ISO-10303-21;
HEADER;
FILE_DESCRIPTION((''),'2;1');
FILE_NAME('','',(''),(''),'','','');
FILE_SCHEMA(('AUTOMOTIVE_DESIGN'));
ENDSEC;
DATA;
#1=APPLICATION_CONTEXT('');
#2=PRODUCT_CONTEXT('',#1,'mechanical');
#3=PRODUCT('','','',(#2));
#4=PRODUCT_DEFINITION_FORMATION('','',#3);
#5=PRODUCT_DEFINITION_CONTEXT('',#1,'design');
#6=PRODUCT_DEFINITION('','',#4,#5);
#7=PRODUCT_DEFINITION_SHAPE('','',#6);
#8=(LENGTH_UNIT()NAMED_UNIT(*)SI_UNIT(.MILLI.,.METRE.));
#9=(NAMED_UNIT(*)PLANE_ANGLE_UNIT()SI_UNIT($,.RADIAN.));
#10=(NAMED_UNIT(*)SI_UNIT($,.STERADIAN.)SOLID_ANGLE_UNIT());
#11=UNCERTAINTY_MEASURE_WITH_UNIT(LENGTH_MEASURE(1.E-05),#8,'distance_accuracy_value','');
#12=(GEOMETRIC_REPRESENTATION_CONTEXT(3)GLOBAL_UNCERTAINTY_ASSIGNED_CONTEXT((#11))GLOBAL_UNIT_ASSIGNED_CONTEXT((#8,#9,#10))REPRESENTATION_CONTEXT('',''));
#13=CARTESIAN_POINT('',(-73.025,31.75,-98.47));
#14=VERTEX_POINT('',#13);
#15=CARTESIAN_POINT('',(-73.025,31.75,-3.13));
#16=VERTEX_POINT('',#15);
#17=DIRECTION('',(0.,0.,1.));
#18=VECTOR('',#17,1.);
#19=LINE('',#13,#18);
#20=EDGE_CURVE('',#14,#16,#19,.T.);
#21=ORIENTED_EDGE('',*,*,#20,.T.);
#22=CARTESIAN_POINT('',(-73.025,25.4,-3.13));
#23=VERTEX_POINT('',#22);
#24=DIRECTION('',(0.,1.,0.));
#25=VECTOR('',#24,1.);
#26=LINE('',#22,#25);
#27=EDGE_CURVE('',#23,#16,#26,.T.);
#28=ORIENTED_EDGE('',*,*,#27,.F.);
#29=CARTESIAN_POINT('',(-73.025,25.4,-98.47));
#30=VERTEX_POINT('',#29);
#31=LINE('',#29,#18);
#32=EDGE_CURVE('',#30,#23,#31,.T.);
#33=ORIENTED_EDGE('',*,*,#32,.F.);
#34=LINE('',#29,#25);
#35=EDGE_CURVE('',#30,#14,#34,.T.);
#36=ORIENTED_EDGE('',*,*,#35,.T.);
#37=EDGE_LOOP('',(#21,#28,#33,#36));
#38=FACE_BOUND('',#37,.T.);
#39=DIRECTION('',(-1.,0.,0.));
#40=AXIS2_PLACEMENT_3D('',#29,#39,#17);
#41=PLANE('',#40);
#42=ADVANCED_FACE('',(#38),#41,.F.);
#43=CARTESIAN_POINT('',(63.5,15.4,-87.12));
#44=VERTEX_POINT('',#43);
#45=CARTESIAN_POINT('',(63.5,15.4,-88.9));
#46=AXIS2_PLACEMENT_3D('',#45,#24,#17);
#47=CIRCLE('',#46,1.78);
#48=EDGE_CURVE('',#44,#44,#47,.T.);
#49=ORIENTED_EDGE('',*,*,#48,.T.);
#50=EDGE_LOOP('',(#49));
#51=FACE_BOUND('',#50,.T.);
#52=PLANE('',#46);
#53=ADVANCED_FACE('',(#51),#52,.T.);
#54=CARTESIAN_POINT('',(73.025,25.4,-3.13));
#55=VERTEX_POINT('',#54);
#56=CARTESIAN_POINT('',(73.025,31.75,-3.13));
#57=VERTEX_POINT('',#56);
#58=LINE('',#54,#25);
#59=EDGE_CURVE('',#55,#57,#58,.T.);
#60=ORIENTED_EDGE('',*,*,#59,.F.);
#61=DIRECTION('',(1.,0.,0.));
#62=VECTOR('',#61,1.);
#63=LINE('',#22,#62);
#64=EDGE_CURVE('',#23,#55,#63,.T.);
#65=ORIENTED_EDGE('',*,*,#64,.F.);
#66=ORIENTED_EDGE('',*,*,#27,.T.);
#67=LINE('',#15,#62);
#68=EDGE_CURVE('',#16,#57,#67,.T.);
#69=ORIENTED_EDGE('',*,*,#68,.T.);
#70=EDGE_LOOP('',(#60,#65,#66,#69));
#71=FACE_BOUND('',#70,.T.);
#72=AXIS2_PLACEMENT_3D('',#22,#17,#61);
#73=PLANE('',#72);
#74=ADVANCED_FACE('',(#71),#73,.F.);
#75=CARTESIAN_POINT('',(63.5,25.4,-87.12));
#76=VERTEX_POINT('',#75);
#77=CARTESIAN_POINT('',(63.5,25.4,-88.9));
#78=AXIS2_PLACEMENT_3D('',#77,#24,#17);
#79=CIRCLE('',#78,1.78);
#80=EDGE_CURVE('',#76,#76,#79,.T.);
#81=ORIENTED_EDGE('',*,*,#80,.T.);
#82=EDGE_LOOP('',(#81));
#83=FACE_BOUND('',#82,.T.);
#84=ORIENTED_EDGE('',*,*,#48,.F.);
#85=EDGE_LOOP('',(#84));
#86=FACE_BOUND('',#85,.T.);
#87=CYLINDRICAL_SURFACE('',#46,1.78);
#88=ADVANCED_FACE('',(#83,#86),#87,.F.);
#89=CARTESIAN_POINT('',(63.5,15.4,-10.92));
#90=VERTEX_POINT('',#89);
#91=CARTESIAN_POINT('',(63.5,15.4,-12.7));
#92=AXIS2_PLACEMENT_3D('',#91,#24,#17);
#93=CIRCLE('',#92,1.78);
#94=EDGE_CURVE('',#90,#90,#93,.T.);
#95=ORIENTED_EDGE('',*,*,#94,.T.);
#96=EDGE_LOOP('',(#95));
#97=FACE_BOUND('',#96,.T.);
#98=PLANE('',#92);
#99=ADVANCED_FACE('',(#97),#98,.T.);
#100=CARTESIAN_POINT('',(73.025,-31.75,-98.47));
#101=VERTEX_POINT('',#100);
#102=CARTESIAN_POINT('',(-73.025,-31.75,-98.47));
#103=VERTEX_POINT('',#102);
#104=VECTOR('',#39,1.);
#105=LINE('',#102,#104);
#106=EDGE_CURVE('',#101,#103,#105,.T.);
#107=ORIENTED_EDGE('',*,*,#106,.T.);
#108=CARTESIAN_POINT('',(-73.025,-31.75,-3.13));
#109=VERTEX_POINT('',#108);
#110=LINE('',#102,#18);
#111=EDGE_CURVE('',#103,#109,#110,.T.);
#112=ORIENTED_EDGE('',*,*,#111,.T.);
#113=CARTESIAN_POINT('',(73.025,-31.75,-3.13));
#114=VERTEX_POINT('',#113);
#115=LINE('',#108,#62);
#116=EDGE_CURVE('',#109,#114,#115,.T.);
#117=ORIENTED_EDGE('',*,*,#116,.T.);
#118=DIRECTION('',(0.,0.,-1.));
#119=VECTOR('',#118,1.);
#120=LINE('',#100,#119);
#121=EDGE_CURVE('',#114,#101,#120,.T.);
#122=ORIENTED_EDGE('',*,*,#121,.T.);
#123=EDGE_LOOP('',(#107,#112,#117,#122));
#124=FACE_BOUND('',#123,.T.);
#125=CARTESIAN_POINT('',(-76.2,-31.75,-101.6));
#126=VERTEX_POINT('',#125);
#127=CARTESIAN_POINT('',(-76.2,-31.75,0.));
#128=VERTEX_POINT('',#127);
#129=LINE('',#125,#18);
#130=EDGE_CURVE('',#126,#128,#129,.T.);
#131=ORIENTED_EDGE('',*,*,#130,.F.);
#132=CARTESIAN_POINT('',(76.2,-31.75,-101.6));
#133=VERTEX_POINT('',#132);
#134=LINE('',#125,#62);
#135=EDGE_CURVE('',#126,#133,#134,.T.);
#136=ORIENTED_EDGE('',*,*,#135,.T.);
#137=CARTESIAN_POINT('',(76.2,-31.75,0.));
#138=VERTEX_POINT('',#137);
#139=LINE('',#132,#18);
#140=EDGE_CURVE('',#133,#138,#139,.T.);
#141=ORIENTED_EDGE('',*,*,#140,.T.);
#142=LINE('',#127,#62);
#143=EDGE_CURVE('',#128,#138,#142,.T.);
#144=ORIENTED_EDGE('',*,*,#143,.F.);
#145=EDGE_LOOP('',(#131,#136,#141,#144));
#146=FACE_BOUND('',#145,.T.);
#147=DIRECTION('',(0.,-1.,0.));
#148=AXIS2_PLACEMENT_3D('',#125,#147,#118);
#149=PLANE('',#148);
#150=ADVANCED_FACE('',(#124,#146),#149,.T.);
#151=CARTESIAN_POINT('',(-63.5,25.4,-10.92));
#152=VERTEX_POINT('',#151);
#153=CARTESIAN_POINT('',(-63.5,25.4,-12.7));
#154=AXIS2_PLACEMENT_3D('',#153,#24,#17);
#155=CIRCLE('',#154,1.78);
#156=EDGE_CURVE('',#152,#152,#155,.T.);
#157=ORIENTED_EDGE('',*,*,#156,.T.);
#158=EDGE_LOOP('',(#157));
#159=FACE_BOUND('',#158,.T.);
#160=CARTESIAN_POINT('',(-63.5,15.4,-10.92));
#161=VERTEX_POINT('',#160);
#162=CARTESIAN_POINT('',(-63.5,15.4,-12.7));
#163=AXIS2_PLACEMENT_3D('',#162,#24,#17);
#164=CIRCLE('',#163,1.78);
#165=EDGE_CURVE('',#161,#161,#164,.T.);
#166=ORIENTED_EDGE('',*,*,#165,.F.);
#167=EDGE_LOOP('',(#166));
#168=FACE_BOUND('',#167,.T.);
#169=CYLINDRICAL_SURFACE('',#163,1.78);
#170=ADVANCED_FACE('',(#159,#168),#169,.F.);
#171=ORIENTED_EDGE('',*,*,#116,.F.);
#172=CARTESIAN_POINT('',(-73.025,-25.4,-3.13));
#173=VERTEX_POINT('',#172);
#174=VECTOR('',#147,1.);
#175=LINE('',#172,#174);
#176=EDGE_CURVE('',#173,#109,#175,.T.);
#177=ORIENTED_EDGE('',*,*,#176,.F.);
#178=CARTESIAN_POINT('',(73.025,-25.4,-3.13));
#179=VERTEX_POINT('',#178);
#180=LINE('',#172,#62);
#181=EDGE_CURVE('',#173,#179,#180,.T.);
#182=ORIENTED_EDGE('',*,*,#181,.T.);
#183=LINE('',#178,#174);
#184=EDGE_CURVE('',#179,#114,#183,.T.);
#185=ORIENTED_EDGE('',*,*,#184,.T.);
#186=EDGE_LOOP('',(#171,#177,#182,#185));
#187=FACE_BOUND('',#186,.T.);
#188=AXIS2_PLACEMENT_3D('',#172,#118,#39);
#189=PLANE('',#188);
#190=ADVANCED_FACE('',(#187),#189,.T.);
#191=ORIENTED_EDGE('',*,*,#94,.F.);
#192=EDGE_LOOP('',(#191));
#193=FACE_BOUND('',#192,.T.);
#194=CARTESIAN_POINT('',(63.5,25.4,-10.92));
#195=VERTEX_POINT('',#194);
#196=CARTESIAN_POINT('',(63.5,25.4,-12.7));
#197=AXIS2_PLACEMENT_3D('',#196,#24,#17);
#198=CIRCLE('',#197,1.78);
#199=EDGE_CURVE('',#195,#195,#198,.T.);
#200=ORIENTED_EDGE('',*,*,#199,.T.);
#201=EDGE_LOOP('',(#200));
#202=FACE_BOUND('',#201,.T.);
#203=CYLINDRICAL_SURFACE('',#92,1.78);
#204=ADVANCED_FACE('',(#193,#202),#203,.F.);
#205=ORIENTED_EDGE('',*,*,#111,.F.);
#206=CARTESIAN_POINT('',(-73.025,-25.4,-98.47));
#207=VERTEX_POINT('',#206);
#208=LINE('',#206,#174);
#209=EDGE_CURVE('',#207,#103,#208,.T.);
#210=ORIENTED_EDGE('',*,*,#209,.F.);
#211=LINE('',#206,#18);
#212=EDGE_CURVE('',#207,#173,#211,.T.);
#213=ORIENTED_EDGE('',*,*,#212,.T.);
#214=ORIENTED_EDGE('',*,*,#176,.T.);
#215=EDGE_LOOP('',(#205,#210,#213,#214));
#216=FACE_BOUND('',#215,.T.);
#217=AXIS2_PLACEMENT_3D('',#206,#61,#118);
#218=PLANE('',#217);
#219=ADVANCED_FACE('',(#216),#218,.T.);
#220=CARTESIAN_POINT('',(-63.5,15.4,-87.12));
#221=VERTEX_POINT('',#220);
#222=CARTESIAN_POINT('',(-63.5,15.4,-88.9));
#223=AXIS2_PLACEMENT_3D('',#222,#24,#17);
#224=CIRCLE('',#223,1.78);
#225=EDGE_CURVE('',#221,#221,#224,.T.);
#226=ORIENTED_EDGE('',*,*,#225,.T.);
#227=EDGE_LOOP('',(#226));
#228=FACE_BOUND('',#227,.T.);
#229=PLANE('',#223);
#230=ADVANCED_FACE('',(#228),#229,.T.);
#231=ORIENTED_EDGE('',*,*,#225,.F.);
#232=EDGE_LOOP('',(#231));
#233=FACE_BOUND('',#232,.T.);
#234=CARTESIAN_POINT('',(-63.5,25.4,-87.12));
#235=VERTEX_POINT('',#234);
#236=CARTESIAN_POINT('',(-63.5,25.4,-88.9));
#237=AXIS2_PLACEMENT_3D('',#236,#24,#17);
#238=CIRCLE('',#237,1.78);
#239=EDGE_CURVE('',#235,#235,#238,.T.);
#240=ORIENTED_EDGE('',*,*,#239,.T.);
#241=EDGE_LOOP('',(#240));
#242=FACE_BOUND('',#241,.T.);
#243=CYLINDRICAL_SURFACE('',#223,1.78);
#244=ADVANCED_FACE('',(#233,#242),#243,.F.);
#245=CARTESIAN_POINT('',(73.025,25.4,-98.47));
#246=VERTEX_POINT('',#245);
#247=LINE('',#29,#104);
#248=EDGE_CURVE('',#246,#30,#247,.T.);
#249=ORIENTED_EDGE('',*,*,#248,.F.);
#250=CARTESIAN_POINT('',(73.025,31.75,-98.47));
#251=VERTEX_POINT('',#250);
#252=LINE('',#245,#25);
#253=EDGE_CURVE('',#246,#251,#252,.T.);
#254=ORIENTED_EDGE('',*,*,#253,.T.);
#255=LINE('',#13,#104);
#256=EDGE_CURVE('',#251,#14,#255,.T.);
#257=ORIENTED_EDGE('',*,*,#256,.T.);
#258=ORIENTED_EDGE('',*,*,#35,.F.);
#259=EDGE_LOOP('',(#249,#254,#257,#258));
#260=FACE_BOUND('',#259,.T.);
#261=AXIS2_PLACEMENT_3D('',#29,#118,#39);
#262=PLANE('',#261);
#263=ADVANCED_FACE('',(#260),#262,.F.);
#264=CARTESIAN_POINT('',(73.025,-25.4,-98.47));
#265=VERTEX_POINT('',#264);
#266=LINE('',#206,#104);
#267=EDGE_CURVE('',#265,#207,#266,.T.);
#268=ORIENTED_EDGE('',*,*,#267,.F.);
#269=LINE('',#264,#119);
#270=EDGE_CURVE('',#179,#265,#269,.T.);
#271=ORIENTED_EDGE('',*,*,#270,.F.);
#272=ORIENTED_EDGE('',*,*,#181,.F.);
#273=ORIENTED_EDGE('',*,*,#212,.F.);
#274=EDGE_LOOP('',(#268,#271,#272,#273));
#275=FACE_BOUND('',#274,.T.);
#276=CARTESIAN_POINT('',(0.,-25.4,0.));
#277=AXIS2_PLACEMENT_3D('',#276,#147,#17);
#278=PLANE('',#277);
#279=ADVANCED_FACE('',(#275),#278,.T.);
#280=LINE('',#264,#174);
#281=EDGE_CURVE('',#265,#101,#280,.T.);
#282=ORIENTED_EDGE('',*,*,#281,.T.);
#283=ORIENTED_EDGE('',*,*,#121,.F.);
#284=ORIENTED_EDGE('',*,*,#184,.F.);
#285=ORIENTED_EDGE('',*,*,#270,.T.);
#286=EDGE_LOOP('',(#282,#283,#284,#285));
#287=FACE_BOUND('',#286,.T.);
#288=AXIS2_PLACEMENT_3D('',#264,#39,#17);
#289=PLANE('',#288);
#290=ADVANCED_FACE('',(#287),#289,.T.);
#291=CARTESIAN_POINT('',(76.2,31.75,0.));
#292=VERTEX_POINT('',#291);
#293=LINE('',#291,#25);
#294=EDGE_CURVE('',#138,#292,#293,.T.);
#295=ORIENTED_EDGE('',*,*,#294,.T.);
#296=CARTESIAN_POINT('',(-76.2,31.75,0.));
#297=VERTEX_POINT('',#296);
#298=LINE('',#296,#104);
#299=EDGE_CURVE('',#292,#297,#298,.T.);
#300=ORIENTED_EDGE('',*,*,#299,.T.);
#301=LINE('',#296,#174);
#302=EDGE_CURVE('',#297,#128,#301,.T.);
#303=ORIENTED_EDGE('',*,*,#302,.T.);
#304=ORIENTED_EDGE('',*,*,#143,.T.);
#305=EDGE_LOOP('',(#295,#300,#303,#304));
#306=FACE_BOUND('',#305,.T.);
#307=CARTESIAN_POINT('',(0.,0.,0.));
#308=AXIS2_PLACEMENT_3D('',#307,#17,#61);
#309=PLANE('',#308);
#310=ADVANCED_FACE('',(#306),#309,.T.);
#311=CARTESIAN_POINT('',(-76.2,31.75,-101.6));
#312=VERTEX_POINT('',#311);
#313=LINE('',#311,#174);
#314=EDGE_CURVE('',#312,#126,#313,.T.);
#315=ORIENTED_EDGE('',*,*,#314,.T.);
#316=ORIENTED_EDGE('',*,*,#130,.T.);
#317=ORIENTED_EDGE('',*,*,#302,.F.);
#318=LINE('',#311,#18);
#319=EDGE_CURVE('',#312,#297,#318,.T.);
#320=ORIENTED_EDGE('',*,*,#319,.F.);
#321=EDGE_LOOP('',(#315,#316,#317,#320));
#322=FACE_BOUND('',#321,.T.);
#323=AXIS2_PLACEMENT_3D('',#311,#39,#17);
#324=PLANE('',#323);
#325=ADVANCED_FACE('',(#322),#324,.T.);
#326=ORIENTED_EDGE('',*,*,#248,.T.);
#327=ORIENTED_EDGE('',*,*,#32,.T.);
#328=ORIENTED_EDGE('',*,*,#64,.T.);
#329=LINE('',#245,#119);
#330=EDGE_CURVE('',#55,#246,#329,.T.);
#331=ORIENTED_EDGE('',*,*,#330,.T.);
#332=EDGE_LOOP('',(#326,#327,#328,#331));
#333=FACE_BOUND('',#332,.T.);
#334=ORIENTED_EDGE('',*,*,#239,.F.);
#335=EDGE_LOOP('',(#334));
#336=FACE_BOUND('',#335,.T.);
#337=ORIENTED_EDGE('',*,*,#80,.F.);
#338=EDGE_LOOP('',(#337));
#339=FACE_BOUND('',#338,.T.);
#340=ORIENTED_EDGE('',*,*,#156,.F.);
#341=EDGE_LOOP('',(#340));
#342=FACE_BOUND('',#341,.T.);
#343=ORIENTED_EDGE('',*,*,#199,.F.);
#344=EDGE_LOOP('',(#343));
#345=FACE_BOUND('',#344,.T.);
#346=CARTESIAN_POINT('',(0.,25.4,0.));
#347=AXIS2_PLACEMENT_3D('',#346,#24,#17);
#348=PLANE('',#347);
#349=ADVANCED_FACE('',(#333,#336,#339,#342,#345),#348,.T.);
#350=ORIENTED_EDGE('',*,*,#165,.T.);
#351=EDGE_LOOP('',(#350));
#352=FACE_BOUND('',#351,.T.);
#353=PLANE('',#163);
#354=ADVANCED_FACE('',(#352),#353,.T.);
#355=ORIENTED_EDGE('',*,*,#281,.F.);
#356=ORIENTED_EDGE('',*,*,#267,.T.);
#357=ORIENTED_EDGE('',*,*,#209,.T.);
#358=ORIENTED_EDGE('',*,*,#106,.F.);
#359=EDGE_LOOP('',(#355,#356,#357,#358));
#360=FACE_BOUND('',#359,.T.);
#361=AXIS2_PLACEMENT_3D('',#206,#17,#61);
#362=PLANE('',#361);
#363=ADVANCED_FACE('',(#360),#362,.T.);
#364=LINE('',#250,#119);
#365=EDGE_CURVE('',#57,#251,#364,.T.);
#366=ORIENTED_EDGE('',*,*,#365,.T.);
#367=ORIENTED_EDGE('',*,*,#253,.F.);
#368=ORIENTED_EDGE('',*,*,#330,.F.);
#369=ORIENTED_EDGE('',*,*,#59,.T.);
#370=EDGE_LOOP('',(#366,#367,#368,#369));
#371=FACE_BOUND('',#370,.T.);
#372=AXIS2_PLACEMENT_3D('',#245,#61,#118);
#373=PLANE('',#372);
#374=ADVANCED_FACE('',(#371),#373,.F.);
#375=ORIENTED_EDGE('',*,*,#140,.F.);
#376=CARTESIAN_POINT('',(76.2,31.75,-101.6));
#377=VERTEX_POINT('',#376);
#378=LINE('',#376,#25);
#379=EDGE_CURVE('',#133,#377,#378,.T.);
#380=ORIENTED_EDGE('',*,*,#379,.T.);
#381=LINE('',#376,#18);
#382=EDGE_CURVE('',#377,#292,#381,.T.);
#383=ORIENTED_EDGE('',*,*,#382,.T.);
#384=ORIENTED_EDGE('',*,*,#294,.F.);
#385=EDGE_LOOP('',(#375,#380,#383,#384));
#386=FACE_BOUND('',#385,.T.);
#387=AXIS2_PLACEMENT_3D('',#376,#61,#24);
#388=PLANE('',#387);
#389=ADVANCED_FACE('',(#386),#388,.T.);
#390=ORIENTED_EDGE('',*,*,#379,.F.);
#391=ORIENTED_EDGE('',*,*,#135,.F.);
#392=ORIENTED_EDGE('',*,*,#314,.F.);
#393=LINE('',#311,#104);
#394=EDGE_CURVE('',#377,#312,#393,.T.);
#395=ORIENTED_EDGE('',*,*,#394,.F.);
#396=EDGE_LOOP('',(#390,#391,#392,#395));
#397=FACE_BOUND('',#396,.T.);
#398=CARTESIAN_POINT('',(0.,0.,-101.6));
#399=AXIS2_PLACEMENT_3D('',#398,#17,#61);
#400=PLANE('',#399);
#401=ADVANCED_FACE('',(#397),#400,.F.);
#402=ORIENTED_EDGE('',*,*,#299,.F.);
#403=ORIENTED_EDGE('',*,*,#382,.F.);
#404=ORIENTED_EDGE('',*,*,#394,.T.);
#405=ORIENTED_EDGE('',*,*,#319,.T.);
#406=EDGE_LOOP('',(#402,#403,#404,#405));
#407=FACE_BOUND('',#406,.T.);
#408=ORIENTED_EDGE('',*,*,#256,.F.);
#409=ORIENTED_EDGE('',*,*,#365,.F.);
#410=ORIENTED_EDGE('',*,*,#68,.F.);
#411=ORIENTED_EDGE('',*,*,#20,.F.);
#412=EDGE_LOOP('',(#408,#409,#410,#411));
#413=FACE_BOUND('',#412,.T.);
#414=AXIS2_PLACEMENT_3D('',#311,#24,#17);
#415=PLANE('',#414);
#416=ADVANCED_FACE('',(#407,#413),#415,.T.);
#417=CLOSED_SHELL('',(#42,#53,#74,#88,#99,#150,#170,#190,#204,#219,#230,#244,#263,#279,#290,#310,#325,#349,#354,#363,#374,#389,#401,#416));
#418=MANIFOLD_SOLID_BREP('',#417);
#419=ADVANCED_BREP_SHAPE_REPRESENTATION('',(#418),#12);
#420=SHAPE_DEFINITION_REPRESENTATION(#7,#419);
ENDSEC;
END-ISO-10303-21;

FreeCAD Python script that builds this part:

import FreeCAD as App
import Part
import Sketcher

V = App.Vector
Q = App.Units.Quantity


def add_polygon(sketch, points):
    """Adds a closed chain of lines whose ends are joined by coincident constraints."""
    first, n = sketch.GeometryCount, len(points)
    for a, b in zip(points, points[1:] + points[:1]):
        sketch.addGeometry(Part.LineSegment(App.Vector(*a, 0), App.Vector(*b, 0)), False)
    for i in range(n):
        sketch.addConstraint(Sketcher.Constraint("Coincident", first + i, 2, first + (i + 1) % n, 1))

doc = App.newDocument("Part")
body = doc.addObject("PartDesign::Body", "Body")

sketch1 = body.newObject("Sketcher::SketchObject", "Sketch")
sketch1.AttachmentSupport = (doc.getObject("XY_Plane"), [""])
sketch1.MapMode = "FlatFace"
add_polygon(sketch1, [(-76, 32), (-76, -32), (76, -32), (76, 32)])
sketch1.addConstraint(Sketcher.Constraint("Vertical", 0))
sketch1.addConstraint(Sketcher.Constraint("Horizontal", 1))
sketch1.addConstraint(Sketcher.Constraint("Vertical", 2))
sketch1.addConstraint(Sketcher.Constraint("Horizontal", 3))
sketch1.addConstraint(Sketcher.Constraint("Symmetric", 0, 2, 2, 2, -1, 1))
sketch1.addConstraint(Sketcher.Constraint("DistanceX", 1, 1, 1, 2, Q("6 in")))
sketch1.addConstraint(Sketcher.Constraint("DistanceY", 0, 2, 0, 1, Q("2.5 in")))
pad1 = body.newObject("PartDesign::Pad", "Pad")
pad1.Profile = sketch1
pad1.Length = Q("4 in")
pad1.Reversed = True

sketch2 = body.newObject("Sketcher::SketchObject", "Sketch001")
sketch2.AttachmentSupport = (doc.getObject("XZ_Plane"), [""])
sketch2.MapMode = "FlatFace"
sketch2.AttachmentOffset = App.Placement(V(0, 0, -1.25 * 25.4), App.Rotation())
add_polygon(sketch2, [(-73, -98), (-73, -3), (73, -3), (73, -98)])
sketch2.addConstraint(Sketcher.Constraint("Vertical", 0))
sketch2.addConstraint(Sketcher.Constraint("Horizontal", 1))
sketch2.addConstraint(Sketcher.Constraint("Vertical", 2))
sketch2.addConstraint(Sketcher.Constraint("Horizontal", 3))
sketch2.addConstraint(Sketcher.Constraint("DistanceX", 1, 1, 1, 2, Q("5.75 in")))
sketch2.addConstraint(Sketcher.Constraint("DistanceX", 0, 2, -1, 1, Q("2.875 in")))
sketch2.addConstraint(Sketcher.Constraint("DistanceY", 0, 1, 0, 2, 95.34))
sketch2.addConstraint(Sketcher.Constraint("DistanceY", 0, 2, -1, 1, 3.13))
pocket1 = body.newObject("PartDesign::Pocket", "Pocket")
pocket1.Profile = sketch2
pocket1.Length = Q("0.25 in")
pocket1.Reversed = True
doc.recompute()

mirrored = body.newObject("PartDesign::Mirrored", "Mirrored")
mirrored.Originals = [pocket1]
mirrored.MirrorPlane = (doc.getObject("XZ_Plane"), [""])
body.Tip = mirrored

sketch3 = body.newObject("Sketcher::SketchObject", "Sketch002")
sketch3.AttachmentSupport = (doc.getObject("XZ_Plane"), [""])
sketch3.MapMode = "FlatFace"
sketch3.AttachmentOffset = App.Placement(V(0, 0, -1 * 25.4), App.Rotation())
sketch3.addGeometry(Part.Circle(V(63.5, -88.9, 0), V(0, 0, 1), 1.8), False)
sketch3.addGeometry(Part.Circle(V(63.5, -12.7, 0), V(0, 0, 1), 1.8), False)
sketch3.addGeometry(Part.Circle(V(-63.5, -88.9, 0), V(0, 0, 1), 1.8), False)
sketch3.addGeometry(Part.Circle(V(-63.5, -12.7, 0), V(0, 0, 1), 1.8), False)
sketch3.addConstraint(Sketcher.Constraint("Equal", 0, 1))
sketch3.addConstraint(Sketcher.Constraint("Equal", 1, 2))
sketch3.addConstraint(Sketcher.Constraint("Equal", 2, 3))
sketch3.addConstraint(Sketcher.Constraint("Symmetric", 0, 3, 2, 3, -2))
sketch3.addConstraint(Sketcher.Constraint("Symmetric", 1, 3, 3, 3, -2))
sketch3.addConstraint(Sketcher.Constraint("Vertical", 0, 3, 1, 3))
sketch3.addConstraint(Sketcher.Constraint("DistanceY", 0, 3, 1, 3, Q("3 in")))
sketch3.addConstraint(Sketcher.Constraint("DistanceX", 2, 3, 0, 3, Q("5 in")))
sketch3.addConstraint(Sketcher.Constraint("DistanceY", 0, 3, -1, 1, Q("3.5 in")))
sketch3.addConstraint(Sketcher.Constraint("Diameter", 0, 3.56))
pocket2 = body.newObject("PartDesign::Pocket", "Pocket001")
pocket2.Profile = sketch3
pocket2.Length = 10
pocket2.Reversed = True

doc.recompute()
